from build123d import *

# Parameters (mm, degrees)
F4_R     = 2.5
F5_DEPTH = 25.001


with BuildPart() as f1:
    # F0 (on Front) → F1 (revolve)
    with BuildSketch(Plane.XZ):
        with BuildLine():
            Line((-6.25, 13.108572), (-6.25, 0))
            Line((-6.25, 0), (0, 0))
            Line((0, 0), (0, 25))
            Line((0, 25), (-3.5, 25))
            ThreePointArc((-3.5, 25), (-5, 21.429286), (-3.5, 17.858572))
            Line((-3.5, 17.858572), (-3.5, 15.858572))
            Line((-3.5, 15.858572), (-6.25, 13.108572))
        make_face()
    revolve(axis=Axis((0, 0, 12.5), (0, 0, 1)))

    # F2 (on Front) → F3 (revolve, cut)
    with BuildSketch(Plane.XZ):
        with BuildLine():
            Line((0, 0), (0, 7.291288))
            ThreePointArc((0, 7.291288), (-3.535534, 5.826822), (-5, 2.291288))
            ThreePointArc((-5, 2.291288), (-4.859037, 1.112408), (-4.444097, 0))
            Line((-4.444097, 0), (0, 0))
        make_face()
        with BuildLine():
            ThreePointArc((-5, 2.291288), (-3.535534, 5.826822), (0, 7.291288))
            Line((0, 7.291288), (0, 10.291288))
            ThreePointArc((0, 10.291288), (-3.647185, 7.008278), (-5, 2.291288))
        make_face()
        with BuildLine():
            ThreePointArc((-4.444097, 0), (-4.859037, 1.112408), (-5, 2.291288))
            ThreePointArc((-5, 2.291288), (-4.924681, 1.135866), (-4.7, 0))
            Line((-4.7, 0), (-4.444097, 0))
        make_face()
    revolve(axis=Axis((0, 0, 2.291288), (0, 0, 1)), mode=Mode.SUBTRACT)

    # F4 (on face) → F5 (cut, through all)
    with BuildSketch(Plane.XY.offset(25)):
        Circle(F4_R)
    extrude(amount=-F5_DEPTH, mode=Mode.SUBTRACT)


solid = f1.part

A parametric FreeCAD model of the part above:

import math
import FreeCAD as App
import Part
import Sketcher

V = App.Vector
Q = App.Units.Quantity

doc = App.newDocument("Part")
params = doc.addObject("Spreadsheet::Sheet", "Params")
for row, (alias, value) in enumerate([
    ("sketch1_radius", "4.999999 mm"),
    ("sketch1_height", "25 mm"),
    ("sketch1_height2", "2 mm"),
    ("sketch1_width", "3.5 mm"),
    ("sketch1_width2", "6.25 mm"),
    ("revolution_angle", "360 deg"),
    ("sketch2_radius", "8.900001 mm"),
    ("sketch2_width", "4.7 mm"),
    ("groove_angle", "360 deg"),
    ("sketch3_diameter", "5 mm"),
], start=1):
    params.set(f"A{row}", alias)
    params.set(f"B{row}", "=" + value)
    params.setAlias(f"B{row}", alias)

body = doc.addObject("PartDesign::Body", "Body")

# Sketch on XZ plane
sketch1 = body.newObject("Sketcher::SketchObject", "Sketch")
sketch1.AttachmentSupport = (doc.getObject("XZ_Plane"), [""])
sketch1.MapMode = "FlatFace"
sketch1.addGeometry([
    Part.LineSegment(V(-6.2, 13.1, 0), V(-6.2, 0, 0)),  # 0
    Part.LineSegment(V(-6.2, 0, 0), V(0, 0, 0)),  # 1
    Part.LineSegment(V(0, 0, 0), V(0, 25, 0)),  # 2
    Part.LineSegment(V(0, 25, 0), V(-3.5, 25, 0)),  # 3
    Part.ArcOfCircle(Part.Circle(V(0, 21.4, 0), V(0, 0, 1), 5), math.radians(134), math.radians(226)),  # 4
    Part.LineSegment(V(-3.5, 17.9, 0), V(-3.5, 15.9, 0)),  # 5
    Part.LineSegment(V(-3.5, 15.9, 0), V(-6.2, 13.1, 0)),  # 6
], False)
sketch1.addConstraint([
    Sketcher.Constraint("Coincident", 0, 2, 1, 1),
    Sketcher.Constraint("Coincident", 1, 2, 2, 1),
    Sketcher.Constraint("Coincident", 2, 2, 3, 1),
    Sketcher.Constraint("Coincident", 3, 2, 4, 1),
    Sketcher.Constraint("Coincident", 4, 2, 5, 1),
    Sketcher.Constraint("Coincident", 5, 2, 6, 1),
    Sketcher.Constraint("Coincident", 6, 2, 0, 1),
    Sketcher.Constraint("Vertical", 0),
    Sketcher.Constraint("Horizontal", 1),
    Sketcher.Constraint("Vertical", 2),
    Sketcher.Constraint("Horizontal", 3),
    Sketcher.Constraint("Vertical", 5),
    Sketcher.Constraint("Coincident", 1, 2, -1, 1),
    Sketcher.Constraint("PointOnObject", 4, 3, -2),
    Sketcher.Constraint("Vertical", 3, 2, 4, 2),
    Sketcher.Constraint("Radius", 4, 4.999999),
    Sketcher.Constraint("DistanceY", 2, 1, 2, 2, 25.0),
    Sketcher.Constraint("DistanceY", 5, 2, 5, 1, 2.0),
    Sketcher.Constraint("Angle", 6, Q("-135 deg")),
    Sketcher.Constraint("DistanceX", 3, 2, 3, 1, 3.5),
    Sketcher.Constraint("DistanceX", 1, 1, 1, 2, 6.25),
])
sketch1.setExpression("Constraints[15]", "Params.sketch1_radius")
sketch1.setExpression("Constraints[16]", "Params.sketch1_height")
sketch1.setExpression("Constraints[17]", "Params.sketch1_height2")
sketch1.setExpression("Constraints[19]", "Params.sketch1_width")
sketch1.setExpression("Constraints[20]", "Params.sketch1_width2")
revolution = body.newObject("PartDesign::Revolution", "Revolution")
revolution.Profile = sketch1
revolution.ReferenceAxis = (sketch1, ["V_Axis"])
revolution.setExpression("Angle", "Params.revolution_angle")

# Sketch on XZ plane
sketch2 = body.newObject("Sketcher::SketchObject", "Sketch001")
sketch2.AttachmentSupport = (doc.getObject("XZ_Plane"), [""])
sketch2.MapMode = "FlatFace"
sketch2.addGeometry([
    Part.LineSegment(V(0, 0, 0), V(0, 10.3, 0)),
    Part.ArcOfCircle(Part.Circle(V(3.9, 2.3, 0), V(0, 0, 1), 8.9), math.radians(116), math.radians(180)),
    Part.ArcOfCircle(Part.Circle(V(3.9, 2.3, 0), V(0, 0, 1), 8.9), math.radians(-180), math.radians(-165.08)),
    Part.LineSegment(V(-4.7, 0, 0), V(0, 0, 0)),
], False)
sketch2.addConstraint([
    Sketcher.Constraint("Coincident", 0, 2, 1, 1),
    Sketcher.Constraint("Tangent", 1, 2, 2, 1),
    Sketcher.Constraint("Coincident", 2, 2, 3, 1),
    Sketcher.Constraint("Coincident", 3, 2, 0, 1),
    Sketcher.Constraint("Vertical", 0),
    Sketcher.Constraint("Horizontal", 3),
    Sketcher.Constraint("Coincident", 3, 2, -1, 1),
    Sketcher.Constraint("Radius", 1, 8.900001),
    Sketcher.Constraint("DistanceX", 3, 1, 3, 2, 4.7),
    Sketcher.Constraint("DistanceX", 1, 2, -1, 1, 5.0),
    Sketcher.Constraint("DistanceY", 1, 2, 0, 2, 8.0),
    Sketcher.Constraint("Radius", 2, 8.900037),
])
sketch2.setExpression("Constraints[7]", "Params.sketch2_radius")
sketch2.setExpression("Constraints[8]", "Params.sketch2_width")
groove = body.newObject("PartDesign::Groove", "Groove")
groove.Profile = sketch2
groove.ReferenceAxis = (sketch2, ["V_Axis"])
groove.setExpression("Angle", "Params.groove_angle")

# Sketch on XY plane
sketch3 = body.newObject("Sketcher::SketchObject", "Sketch002")
sketch3.AttachmentSupport = (doc.getObject("XY_Plane"), [""])
sketch3.MapMode = "FlatFace"
sketch3.AttachmentOffset = App.Placement(V(0, 0, 25), App.Rotation())
sketch3.addGeometry(Part.Circle(V(0, 0, 0), V(0, 0, 1), 2.5), False)
sketch3.addConstraint([
    Sketcher.Constraint("Coincident", 0, 3, -1, 1),
    Sketcher.Constraint("Diameter", 0, 5.0),
])
sketch3.setExpression("Constraints[1]", "Params.sketch3_diameter")
pocket1 = body.newObject("PartDesign::Pocket", "Pocket")
pocket1.Profile = sketch3
pocket1.Type = "ThroughAll"

doc.recompute()
